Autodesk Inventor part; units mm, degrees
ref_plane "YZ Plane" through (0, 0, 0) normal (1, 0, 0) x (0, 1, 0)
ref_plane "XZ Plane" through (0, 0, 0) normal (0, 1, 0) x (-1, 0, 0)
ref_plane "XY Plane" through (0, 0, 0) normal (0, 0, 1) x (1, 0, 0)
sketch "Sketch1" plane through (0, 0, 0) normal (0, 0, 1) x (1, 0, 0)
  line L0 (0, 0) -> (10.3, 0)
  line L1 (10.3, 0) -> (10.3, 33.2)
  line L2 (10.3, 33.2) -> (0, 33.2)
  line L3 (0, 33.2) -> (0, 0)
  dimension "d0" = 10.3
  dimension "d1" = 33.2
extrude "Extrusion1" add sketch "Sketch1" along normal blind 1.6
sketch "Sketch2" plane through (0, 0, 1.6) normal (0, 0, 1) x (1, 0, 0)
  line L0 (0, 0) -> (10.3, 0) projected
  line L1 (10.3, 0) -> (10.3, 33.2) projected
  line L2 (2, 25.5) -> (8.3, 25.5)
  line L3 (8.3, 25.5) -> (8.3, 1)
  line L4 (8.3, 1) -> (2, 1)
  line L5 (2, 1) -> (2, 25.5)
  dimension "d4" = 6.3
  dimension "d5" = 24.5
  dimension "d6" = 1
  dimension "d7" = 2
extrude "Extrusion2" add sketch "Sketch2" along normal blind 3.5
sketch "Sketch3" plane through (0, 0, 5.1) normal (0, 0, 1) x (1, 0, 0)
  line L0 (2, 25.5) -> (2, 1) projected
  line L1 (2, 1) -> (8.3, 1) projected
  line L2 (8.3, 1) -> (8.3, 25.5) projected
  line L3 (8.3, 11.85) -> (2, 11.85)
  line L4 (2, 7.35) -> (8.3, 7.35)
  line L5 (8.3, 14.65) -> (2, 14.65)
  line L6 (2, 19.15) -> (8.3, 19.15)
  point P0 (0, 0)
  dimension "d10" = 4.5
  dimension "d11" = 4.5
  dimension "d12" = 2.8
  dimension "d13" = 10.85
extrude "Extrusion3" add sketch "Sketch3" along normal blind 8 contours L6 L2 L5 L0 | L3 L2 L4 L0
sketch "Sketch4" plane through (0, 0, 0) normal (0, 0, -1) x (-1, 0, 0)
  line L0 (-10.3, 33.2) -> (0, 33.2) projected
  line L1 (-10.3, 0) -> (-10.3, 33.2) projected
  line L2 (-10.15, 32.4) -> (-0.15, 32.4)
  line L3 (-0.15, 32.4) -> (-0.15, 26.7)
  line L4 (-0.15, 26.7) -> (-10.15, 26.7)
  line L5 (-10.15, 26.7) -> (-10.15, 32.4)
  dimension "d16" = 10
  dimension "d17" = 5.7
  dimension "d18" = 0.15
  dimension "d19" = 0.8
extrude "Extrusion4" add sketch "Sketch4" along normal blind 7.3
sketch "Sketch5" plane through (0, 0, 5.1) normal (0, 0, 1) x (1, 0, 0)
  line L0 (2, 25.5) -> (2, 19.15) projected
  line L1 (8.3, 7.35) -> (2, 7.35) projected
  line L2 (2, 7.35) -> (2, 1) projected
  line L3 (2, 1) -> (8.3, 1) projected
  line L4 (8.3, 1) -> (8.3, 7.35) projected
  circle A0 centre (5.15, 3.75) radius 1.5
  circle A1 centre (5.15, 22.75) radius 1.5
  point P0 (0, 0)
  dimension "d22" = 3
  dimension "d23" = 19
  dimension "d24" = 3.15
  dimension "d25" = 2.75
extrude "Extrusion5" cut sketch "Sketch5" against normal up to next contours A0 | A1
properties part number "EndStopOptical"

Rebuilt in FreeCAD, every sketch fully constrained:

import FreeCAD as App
import Part
import Sketcher
Q = App.Units.Quantity

doc = App.newDocument("Part")
body = doc.addObject("PartDesign::Body", "Body")

# Sketch on XY plane
sketch1 = body.newObject("Sketcher::SketchObject", "Sketch")
sketch1.AttachmentSupport = (doc.getObject("XY_Plane"), [""])
sketch1.MapMode = "FlatFace"
sketch1.addGeometry([
    Part.LineSegment(App.Vector(0, 33, 0), App.Vector(0, 0, 0)),
    Part.LineSegment(App.Vector(0, 0, 0), App.Vector(10, 0, 0)),
    Part.LineSegment(App.Vector(10, 0, 0), App.Vector(10, 33, 0)),
    Part.LineSegment(App.Vector(10, 33, 0), App.Vector(0, 33, 0)),
], False)
sketch1.addConstraint([
    Sketcher.Constraint("Coincident", 0, 2, 1, 1),
    Sketcher.Constraint("Coincident", 1, 2, 2, 1),
    Sketcher.Constraint("Coincident", 2, 2, 3, 1),
    Sketcher.Constraint("Coincident", 3, 2, 0, 1),
    Sketcher.Constraint("Vertical", 0),
    Sketcher.Constraint("Horizontal", 1),
    Sketcher.Constraint("Vertical", 2),
    Sketcher.Constraint("Horizontal", 3),
    Sketcher.Constraint("Coincident", 0, 2, -1, 1),
    Sketcher.Constraint("DistanceX", 1, 1, 1, 2, Q("10.3 mm")),
    Sketcher.Constraint("DistanceY", 0, 2, 0, 1, Q("33.2 mm")),
])
pad1 = body.newObject("PartDesign::Pad", "Pad")
pad1.Profile = sketch1
pad1.Length = 1.6

# Sketch on XY plane
sketch2 = body.newObject("Sketcher::SketchObject", "Sketch001")
sketch2.AttachmentSupport = (doc.getObject("XY_Plane"), [""])
sketch2.MapMode = "FlatFace"
sketch2.AttachmentOffset = App.Placement(App.Vector(0, 0, 1.6), App.Rotation())
sketch2.addGeometry([
    Part.LineSegment(App.Vector(8, 26, 0), App.Vector(2, 26, 0)),
    Part.LineSegment(App.Vector(2, 26, 0), App.Vector(2, 1, 0)),
    Part.LineSegment(App.Vector(2, 1, 0), App.Vector(8, 1, 0)),
    Part.LineSegment(App.Vector(8, 1, 0), App.Vector(8, 26, 0)),
], False)
sketch2.addConstraint([
    Sketcher.Constraint("Coincident", 0, 2, 1, 1),
    Sketcher.Constraint("Coincident", 1, 2, 2, 1),
    Sketcher.Constraint("Coincident", 2, 2, 3, 1),
    Sketcher.Constraint("Coincident", 3, 2, 0, 1),
    Sketcher.Constraint("Horizontal", 0),
    Sketcher.Constraint("Vertical", 1),
    Sketcher.Constraint("Horizontal", 2),
    Sketcher.Constraint("Vertical", 3),
    Sketcher.Constraint("DistanceX", 0, 2, 0, 1, Q("6.3 mm")),
    Sketcher.Constraint("DistanceY", 1, 2, 1, 1, Q("24.5 mm")),
    Sketcher.Constraint("DistanceX", -1, 1, 0, 2, Q("2 mm")),
    Sketcher.Constraint("DistanceY", -1, 1, 1, 2, Q("1 mm")),
])
pad2 = body.newObject("PartDesign::Pad", "Pad001")
pad2.Profile = sketch2
pad2.Length = 3.5

# Sketch on XY plane
sketch3 = body.newObject("Sketcher::SketchObject", "Sketch002")
sketch3.AttachmentSupport = (doc.getObject("XY_Plane"), [""])
sketch3.MapMode = "FlatFace"
sketch3.AttachmentOffset = App.Placement(App.Vector(0, 0, 5.1), App.Rotation())
sketch3.addGeometry([
    Part.LineSegment(App.Vector(8.3, 19.1, 0), App.Vector(2, 19.1, 0)),  # 0
    Part.LineSegment(App.Vector(2, 19.1, 0), App.Vector(2, 14.7, 0)),  # 1
    Part.LineSegment(App.Vector(2, 14.7, 0), App.Vector(8.3, 14.7, 0)),  # 2
    Part.LineSegment(App.Vector(8.3, 14.7, 0), App.Vector(8.3, 19.1, 0)),  # 3
    Part.LineSegment(App.Vector(8.3, 11.8, 0), App.Vector(2, 11.8, 0)),  # 4
    Part.LineSegment(App.Vector(2, 11.8, 0), App.Vector(2, 7.3, 0)),  # 5
    Part.LineSegment(App.Vector(2, 7.3, 0), App.Vector(8.3, 7.3, 0)),  # 6
    Part.LineSegment(App.Vector(8.3, 7.3, 0), App.Vector(8.3, 11.8, 0)),  # 7
], False)
sketch3.addConstraint([
    Sketcher.Constraint("Coincident", 0, 2, 1, 1),
    Sketcher.Constraint("Coincident", 1, 2, 2, 1),
    Sketcher.Constraint("Coincident", 2, 2, 3, 1),
    Sketcher.Constraint("Coincident", 3, 2, 0, 1),
    Sketcher.Constraint("Coincident", 4, 2, 5, 1),
    Sketcher.Constraint("Coincident", 5, 2, 6, 1),
    Sketcher.Constraint("Coincident", 6, 2, 7, 1),
    Sketcher.Constraint("Coincident", 7, 2, 4, 1),
    Sketcher.Constraint("Horizontal", 0),
    Sketcher.Constraint("Vertical", 1),
    Sketcher.Constraint("Horizontal", 2),
    Sketcher.Constraint("Vertical", 3),
    Sketcher.Constraint("Horizontal", 4),
    Sketcher.Constraint("Vertical", 5),
    Sketcher.Constraint("Horizontal", 6),
    Sketcher.Constraint("Vertical", 7),
    Sketcher.Constraint("Vertical", 1, 2, 4, 2),
    Sketcher.Constraint("Vertical", 3, 2, 6, 2),
    Sketcher.Constraint("Equal", 3, 5),
    Sketcher.Constraint("DistanceY", 1, 2, 1, 1, Q("4.5 mm")),
    Sketcher.Constraint("DistanceY", 4, 2, 1, 2, Q("2.8 mm")),
    Sketcher.Constraint("DistanceX", 0, 2, 0, 1, Q("6.3 mm")),
    Sketcher.Constraint("DistanceX", -1, 1, 0, 2, Q("2 mm")),
    Sketcher.Constraint("DistanceY", -1, 1, 0, 2, Q("19.15 mm")),
])
pad3 = body.newObject("PartDesign::Pad", "Pad002")
pad3.Profile = sketch3
pad3.Length = 8

# Sketch on XY plane
sketch4 = body.newObject("Sketcher::SketchObject", "Sketch003")
sketch4.AttachmentSupport = (doc.getObject("XY_Plane"), [""])
sketch4.MapMode = "FlatFace"
sketch4.addGeometry([
    Part.LineSegment(App.Vector(0, 32, 0), App.Vector(10, 32, 0)),
    Part.LineSegment(App.Vector(10, 32, 0), App.Vector(10, 27, 0)),
    Part.LineSegment(App.Vector(10, 27, 0), App.Vector(0, 27, 0)),
    Part.LineSegment(App.Vector(0, 27, 0), App.Vector(0, 32, 0)),
], False)
sketch4.addConstraint([
    Sketcher.Constraint("Coincident", 0, 2, 1, 1),
    Sketcher.Constraint("Coincident", 1, 2, 2, 1),
    Sketcher.Constraint("Coincident", 2, 2, 3, 1),
    Sketcher.Constraint("Coincident", 3, 2, 0, 1),
    Sketcher.Constraint("Horizontal", 0),
    Sketcher.Constraint("Vertical", 1),
    Sketcher.Constraint("Horizontal", 2),
    Sketcher.Constraint("Vertical", 3),
    Sketcher.Constraint("DistanceX", 0, 1, 0, 2, Q("10 mm")),
    Sketcher.Constraint("DistanceY", 1, 2, 1, 1, Q("5.7 mm")),
    Sketcher.Constraint("DistanceX", -1, 1, 2, 2, Q("0.15 mm")),
    Sketcher.Constraint("DistanceY", -1, 1, 0, 2, Q("32.4 mm")),
])
pad4 = body.newObject("PartDesign::Pad", "Pad003")
pad4.Profile = sketch4
pad4.Length = 7.3
pad4.Reversed = True

# Sketch on XY plane
sketch5 = body.newObject("Sketcher::SketchObject", "Sketch004")
sketch5.AttachmentSupport = (doc.getObject("XY_Plane"), [""])
sketch5.MapMode = "FlatFace"
sketch5.AttachmentOffset = App.Placement(App.Vector(0, 0, 5.1), App.Rotation())
sketch5.addGeometry([
    Part.Circle(App.Vector(5.2, 3.8, 0), App.Vector(0, 0, 1), 1.5),
    Part.Circle(App.Vector(5.2, 22.8, 0), App.Vector(0, 0, 1), 1.5),
], False)
sketch5.addConstraint([
    Sketcher.Constraint("Equal", 0, 1),
    Sketcher.Constraint("Vertical", 0, 3, 1, 3),
    Sketcher.Constraint("Diameter", 0, Q("3 mm")),
    Sketcher.Constraint("DistanceY", 0, 3, 1, 3, Q("19 mm")),
    Sketcher.Constraint("DistanceX", -1, 1, 0, 3, Q("5.15 mm")),
    Sketcher.Constraint("DistanceY", -1, 1, 0, 3, Q("3.75 mm")),
])
pocket1 = body.newObject("PartDesign::Pocket", "Pocket")
pocket1.Profile = sketch5
pocket1.Type = "UpToFirst"

doc.recompute()
